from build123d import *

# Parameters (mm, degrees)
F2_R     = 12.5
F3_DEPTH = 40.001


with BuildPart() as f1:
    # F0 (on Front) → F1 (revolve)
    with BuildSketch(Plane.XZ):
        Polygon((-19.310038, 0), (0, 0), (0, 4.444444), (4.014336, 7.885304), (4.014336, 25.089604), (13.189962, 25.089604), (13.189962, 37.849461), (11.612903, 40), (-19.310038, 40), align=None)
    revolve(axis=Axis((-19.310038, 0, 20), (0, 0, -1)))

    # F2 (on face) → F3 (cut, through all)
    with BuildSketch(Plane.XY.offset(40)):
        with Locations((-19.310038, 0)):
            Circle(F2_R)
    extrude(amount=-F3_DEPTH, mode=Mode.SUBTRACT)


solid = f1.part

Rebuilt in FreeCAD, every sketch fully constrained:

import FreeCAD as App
import Part
import Sketcher
from FreeCAD import Vector

doc = App.newDocument("Part")
params = doc.addObject("Spreadsheet::Sheet", "Params")
for row, (alias, value) in enumerate([
    ("sketch1_height", "40 mm"),
    ("revolution_angle", "360 deg"),
    ("sketch2_diameter", "25 mm"),
], start=1):
    params.set(f"A{row}", alias)
    params.set(f"B{row}", "=" + value)
    params.setAlias(f"B{row}", alias)

body = doc.addObject("PartDesign::Body", "Body")

sketch1 = body.newObject("Sketcher::SketchObject", "Sketch")
sketch1.AttachmentSupport = (doc.getObject("XZ_Plane"), [""])
sketch1.MapMode = "FlatFace"
sketch1.addGeometry(Part.LineSegment(Vector(-19.3, 0, 0), Vector(0, 0, 0)), False)
sketch1.addGeometry(Part.LineSegment(Vector(0, 0, 0), Vector(0, 4.4, 0)), False)
sketch1.addGeometry(Part.LineSegment(Vector(0, 4.4, 0), Vector(4, 7.9, 0)), False)
sketch1.addGeometry(Part.LineSegment(Vector(4, 7.9, 0), Vector(4, 25.1, 0)), False)
sketch1.addGeometry(Part.LineSegment(Vector(4, 25.1, 0), Vector(13.2, 25.1, 0)), False)
sketch1.addGeometry(Part.LineSegment(Vector(13.2, 25.1, 0), Vector(13.2, 37.8, 0)), False)
sketch1.addGeometry(Part.LineSegment(Vector(13.2, 37.8, 0), Vector(11.6, 40, 0)), False)
sketch1.addGeometry(Part.LineSegment(Vector(11.6, 40, 0), Vector(-19.3, 40, 0)), False)
sketch1.addGeometry(Part.LineSegment(Vector(-19.3, 40, 0), Vector(-19.3, 0, 0)), False)
sketch1.addGeometry(Part.LineSegment(Vector(-19.3, 40, 0), Vector(-19.3, 0, 0)), True)
sketch1.addConstraint(Sketcher.Constraint("Coincident", 0, 2, 1, 1))
sketch1.addConstraint(Sketcher.Constraint("Coincident", 1, 2, 2, 1))
sketch1.addConstraint(Sketcher.Constraint("Coincident", 2, 2, 3, 1))
sketch1.addConstraint(Sketcher.Constraint("Coincident", 3, 2, 4, 1))
sketch1.addConstraint(Sketcher.Constraint("Coincident", 4, 2, 5, 1))
sketch1.addConstraint(Sketcher.Constraint("Coincident", 5, 2, 6, 1))
sketch1.addConstraint(Sketcher.Constraint("Coincident", 6, 2, 7, 1))
sketch1.addConstraint(Sketcher.Constraint("Coincident", 7, 2, 8, 1))
sketch1.addConstraint(Sketcher.Constraint("Coincident", 8, 2, 0, 1))
sketch1.addConstraint(Sketcher.Constraint("Horizontal", 0))
sketch1.addConstraint(Sketcher.Constraint("Vertical", 1))
sketch1.addConstraint(Sketcher.Constraint("Vertical", 3))
sketch1.addConstraint(Sketcher.Constraint("Horizontal", 4))
sketch1.addConstraint(Sketcher.Constraint("Vertical", 5))
sketch1.addConstraint(Sketcher.Constraint("Horizontal", 7))
sketch1.addConstraint(Sketcher.Constraint("Vertical", 8))
sketch1.addConstraint(Sketcher.Constraint("Vertical", 9))
sketch1.addConstraint(Sketcher.Constraint("Coincident", 0, 2, -1, 1))
sketch1.addConstraint(Sketcher.Constraint("Coincident", 9, 1, 7, 2))
sketch1.addConstraint(Sketcher.Constraint("PointOnObject", 9, 2, -1))
sketch1.addConstraint(Sketcher.Constraint("DistanceY", 8, 2, 8, 1, 40.0))
sketch1.addConstraint(Sketcher.Constraint("DistanceX", 7, 2, 5, 2, 32.5))
sketch1.addConstraint(Sketcher.Constraint("DistanceY", 3, 1, 3, 2, 17.2043))
sketch1.addConstraint(Sketcher.Constraint("DistanceX", 7, 2, 7, 1, 30.922941))
sketch1.addConstraint(Sketcher.Constraint("Distance", 6, 2.666821))
sketch1.addConstraint(Sketcher.Constraint("DistanceX", 0, 1, 0, 2, 19.310038))
sketch1.addConstraint(Sketcher.Constraint("DistanceX", 4, 1, 4, 2, 9.175626))
sketch1.addConstraint(Sketcher.Constraint("DistanceY", 1, 1, 1, 2, 4.444444))
sketch1.addConstraint(Sketcher.Constraint("DistanceY", 5, 1, 5, 2, 12.759857))
sketch1.setExpression("Constraints[20]", "Params.sketch1_height")
revolution = body.newObject("PartDesign::Revolution", "Revolution")
revolution.Profile = sketch1
revolution.ReferenceAxis = (sketch1, ["Axis0"])
revolution.setExpression("Angle", "Params.revolution_angle")

sketch2 = body.newObject("Sketcher::SketchObject", "Sketch001")
sketch2.AttachmentSupport = (doc.getObject("XY_Plane"), [""])
sketch2.MapMode = "FlatFace"
sketch2.AttachmentOffset = App.Placement(Vector(0, 0, 40), App.Rotation())
sketch2.addGeometry(Part.Circle(Vector(-19, 0, 0), Vector(0, 0, 1), 12), False)
sketch2.addConstraint(Sketcher.Constraint("PointOnObject", 0, 3, -1))
sketch2.addConstraint(Sketcher.Constraint("Diameter", 0, 25.0))
sketch2.addConstraint(Sketcher.Constraint("DistanceX", 0, 3, -1, 1, 19.310038))
sketch2.setExpression("Constraints[1]", "Params.sketch2_diameter")
pocket1 = body.newObject("PartDesign::Pocket", "Pocket")
pocket1.Profile = sketch2
pocket1.Type = "ThroughAll"

doc.recompute()
